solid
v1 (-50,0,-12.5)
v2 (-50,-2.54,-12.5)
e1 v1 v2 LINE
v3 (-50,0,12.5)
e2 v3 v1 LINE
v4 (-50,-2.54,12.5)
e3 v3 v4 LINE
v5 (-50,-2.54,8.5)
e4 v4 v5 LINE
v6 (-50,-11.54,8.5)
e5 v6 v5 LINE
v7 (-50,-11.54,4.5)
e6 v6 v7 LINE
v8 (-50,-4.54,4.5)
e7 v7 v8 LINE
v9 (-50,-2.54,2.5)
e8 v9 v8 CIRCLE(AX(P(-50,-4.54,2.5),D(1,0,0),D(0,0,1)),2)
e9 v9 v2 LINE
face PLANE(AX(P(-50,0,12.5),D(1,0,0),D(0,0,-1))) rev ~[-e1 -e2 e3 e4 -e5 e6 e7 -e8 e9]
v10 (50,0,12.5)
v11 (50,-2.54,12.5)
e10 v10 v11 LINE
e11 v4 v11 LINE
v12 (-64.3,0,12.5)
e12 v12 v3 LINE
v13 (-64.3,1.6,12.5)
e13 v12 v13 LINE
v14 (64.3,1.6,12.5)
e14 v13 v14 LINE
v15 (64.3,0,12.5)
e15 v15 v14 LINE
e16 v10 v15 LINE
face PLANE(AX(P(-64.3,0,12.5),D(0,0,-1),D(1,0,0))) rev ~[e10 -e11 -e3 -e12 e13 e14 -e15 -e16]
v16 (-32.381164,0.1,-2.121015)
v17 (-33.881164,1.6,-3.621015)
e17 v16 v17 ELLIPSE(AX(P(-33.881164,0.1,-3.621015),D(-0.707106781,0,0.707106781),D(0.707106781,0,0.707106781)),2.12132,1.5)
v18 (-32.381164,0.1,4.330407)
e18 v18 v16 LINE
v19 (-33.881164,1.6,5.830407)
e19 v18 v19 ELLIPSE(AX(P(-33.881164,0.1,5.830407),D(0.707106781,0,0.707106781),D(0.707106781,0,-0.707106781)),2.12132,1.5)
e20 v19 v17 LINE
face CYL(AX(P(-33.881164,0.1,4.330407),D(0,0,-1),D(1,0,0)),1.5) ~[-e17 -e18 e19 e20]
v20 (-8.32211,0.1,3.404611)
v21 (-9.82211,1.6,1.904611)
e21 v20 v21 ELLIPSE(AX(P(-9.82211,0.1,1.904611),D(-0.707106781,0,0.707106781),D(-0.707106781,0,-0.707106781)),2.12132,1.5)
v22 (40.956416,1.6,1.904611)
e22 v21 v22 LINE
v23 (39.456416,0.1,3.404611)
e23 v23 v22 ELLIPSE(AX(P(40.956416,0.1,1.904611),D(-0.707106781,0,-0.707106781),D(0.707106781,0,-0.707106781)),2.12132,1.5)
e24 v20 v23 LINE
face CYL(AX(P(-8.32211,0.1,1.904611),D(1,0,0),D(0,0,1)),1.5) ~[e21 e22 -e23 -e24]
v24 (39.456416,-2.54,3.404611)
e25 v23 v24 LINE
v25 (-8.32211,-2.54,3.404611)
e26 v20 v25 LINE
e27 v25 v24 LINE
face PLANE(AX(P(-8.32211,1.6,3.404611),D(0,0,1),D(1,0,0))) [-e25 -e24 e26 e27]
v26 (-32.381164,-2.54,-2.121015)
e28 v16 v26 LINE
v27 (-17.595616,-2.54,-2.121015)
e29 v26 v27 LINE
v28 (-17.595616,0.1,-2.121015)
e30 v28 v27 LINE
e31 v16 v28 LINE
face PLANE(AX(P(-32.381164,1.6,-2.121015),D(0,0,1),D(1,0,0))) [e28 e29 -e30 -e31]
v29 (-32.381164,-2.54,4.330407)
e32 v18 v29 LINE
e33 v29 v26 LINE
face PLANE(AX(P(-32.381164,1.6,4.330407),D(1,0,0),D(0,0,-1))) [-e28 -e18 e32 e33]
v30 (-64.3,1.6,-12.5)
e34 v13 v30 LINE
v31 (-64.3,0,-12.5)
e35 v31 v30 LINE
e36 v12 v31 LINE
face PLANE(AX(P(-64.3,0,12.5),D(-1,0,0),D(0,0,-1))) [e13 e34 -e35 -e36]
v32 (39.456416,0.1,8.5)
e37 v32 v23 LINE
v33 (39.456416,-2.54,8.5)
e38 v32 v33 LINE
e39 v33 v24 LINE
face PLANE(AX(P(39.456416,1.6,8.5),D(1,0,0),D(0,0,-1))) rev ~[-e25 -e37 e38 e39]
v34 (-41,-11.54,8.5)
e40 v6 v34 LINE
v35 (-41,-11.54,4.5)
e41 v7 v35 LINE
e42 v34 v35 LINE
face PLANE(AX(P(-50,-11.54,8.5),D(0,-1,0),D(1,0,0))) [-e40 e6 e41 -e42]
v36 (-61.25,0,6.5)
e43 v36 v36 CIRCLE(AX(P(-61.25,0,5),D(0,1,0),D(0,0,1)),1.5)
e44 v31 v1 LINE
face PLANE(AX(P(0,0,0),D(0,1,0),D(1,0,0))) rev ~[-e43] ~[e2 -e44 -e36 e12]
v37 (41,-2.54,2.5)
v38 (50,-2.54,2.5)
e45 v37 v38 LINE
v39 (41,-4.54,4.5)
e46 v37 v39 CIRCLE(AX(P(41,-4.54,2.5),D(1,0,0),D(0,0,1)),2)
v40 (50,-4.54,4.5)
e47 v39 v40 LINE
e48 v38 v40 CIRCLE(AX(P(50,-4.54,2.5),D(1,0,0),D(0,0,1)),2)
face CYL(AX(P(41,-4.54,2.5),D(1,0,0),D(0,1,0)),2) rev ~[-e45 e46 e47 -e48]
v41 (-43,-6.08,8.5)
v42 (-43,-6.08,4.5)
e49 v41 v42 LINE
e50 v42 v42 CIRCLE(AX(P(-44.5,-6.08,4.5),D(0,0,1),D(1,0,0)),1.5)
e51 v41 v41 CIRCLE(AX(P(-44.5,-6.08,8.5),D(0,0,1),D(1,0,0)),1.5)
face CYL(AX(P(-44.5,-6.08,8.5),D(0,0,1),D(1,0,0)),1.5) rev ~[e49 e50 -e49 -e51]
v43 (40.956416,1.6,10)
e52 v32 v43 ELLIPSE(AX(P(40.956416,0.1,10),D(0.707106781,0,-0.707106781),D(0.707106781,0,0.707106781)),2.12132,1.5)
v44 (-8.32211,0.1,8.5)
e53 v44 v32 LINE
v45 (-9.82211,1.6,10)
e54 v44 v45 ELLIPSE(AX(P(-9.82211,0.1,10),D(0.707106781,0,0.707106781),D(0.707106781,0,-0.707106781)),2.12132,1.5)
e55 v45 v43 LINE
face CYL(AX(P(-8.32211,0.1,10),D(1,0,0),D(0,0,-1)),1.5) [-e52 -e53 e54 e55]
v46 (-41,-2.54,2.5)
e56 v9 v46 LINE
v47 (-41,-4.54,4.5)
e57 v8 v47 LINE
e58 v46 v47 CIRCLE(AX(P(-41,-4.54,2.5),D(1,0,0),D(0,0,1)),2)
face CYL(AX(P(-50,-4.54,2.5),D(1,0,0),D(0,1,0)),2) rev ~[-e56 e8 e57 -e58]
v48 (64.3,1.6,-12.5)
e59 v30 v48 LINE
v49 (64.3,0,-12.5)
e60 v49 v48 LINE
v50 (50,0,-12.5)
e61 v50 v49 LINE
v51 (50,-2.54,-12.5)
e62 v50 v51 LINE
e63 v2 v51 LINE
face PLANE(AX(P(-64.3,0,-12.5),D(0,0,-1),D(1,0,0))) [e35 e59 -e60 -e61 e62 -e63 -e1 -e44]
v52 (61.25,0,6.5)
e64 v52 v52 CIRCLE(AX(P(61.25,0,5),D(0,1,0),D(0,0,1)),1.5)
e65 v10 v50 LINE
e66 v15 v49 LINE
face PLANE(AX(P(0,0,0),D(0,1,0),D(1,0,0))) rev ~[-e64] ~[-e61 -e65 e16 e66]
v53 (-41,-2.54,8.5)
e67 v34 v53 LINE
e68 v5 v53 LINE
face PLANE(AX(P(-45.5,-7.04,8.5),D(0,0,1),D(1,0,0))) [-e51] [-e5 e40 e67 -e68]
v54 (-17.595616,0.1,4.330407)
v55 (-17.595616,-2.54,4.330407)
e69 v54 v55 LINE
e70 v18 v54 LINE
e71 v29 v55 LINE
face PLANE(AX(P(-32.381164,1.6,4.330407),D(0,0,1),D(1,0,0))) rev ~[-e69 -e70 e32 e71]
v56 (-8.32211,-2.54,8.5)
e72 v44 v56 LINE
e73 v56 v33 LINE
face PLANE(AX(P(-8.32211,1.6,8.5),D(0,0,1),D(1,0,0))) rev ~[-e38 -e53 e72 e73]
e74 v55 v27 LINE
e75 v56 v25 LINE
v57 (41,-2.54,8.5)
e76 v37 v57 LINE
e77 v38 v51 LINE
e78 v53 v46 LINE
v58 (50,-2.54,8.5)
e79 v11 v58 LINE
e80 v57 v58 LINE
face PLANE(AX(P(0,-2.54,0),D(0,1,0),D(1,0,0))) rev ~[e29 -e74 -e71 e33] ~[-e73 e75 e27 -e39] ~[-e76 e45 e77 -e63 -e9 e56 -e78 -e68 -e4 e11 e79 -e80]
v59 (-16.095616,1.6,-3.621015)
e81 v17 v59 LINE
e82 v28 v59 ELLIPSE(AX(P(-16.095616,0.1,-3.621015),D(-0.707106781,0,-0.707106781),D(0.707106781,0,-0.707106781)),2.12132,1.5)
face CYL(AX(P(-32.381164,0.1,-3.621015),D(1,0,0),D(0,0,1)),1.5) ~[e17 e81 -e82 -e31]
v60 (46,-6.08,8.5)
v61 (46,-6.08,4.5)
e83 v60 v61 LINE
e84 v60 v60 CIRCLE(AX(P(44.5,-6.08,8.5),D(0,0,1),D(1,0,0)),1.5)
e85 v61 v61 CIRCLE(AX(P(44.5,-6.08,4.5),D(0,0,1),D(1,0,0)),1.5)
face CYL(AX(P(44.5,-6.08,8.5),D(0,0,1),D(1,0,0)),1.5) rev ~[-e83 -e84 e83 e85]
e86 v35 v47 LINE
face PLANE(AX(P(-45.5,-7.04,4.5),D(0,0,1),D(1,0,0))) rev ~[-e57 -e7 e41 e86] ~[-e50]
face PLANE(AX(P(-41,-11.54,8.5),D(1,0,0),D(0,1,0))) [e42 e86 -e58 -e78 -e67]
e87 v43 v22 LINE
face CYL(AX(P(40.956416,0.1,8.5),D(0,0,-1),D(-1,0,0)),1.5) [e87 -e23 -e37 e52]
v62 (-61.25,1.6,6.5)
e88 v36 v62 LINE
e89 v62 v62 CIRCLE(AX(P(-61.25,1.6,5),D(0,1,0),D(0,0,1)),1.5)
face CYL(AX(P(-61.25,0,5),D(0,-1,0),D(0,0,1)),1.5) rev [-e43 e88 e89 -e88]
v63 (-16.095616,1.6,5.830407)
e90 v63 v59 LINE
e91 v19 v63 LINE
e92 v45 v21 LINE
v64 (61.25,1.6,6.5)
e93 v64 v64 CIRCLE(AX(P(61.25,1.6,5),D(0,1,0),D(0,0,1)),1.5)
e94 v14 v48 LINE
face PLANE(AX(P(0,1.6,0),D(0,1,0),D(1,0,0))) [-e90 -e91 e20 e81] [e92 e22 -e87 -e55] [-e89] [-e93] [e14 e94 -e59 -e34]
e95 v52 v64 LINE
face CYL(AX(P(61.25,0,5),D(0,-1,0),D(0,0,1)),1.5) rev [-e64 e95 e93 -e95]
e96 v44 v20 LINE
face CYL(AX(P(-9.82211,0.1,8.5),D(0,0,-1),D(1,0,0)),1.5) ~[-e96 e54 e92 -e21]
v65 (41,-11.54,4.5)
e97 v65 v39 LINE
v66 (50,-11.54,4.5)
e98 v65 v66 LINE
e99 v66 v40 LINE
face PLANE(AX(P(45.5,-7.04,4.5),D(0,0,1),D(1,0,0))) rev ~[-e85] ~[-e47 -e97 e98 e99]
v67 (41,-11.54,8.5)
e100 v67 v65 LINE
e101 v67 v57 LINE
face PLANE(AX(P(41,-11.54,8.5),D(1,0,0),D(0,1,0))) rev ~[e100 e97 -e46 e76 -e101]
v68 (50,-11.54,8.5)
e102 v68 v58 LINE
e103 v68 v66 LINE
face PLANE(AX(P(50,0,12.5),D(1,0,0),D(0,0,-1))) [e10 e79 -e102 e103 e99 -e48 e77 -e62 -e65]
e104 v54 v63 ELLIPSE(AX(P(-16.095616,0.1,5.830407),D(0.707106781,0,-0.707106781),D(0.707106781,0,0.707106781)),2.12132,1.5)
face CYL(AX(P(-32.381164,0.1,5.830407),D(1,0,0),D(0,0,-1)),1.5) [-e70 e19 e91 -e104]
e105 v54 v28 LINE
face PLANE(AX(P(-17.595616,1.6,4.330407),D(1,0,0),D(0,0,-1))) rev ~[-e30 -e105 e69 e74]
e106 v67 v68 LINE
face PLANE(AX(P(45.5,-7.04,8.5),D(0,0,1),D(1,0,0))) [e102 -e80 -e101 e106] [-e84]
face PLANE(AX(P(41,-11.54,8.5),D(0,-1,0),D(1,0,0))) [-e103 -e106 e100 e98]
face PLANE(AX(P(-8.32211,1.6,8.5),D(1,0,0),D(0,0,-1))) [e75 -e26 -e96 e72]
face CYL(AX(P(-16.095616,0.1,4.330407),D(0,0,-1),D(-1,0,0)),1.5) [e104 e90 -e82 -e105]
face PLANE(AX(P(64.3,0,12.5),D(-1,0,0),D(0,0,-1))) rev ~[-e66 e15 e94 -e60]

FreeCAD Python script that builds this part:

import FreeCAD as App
import Part
import Sketcher
from FreeCAD import Vector


def edges_at(feature, points):
    """Names of the edges that pass closest to the given points."""
    edges = feature.Shape.Edges
    near = lambda p: min(range(len(edges)), key=lambda i: edges[i].distToShape(Part.Vertex(*p))[0])
    return sorted({f"Edge{near(p) + 1}" for p in points})

doc = App.newDocument("Part")
body = doc.addObject("PartDesign::Body", "Body")

# Sketch on XZ plane
sketch1 = doc.addObject("Sketcher::SketchObject", "Sketch")
body.addObject(sketch1)
sketch1.AttachmentSupport = (doc.XZ_Plane, [""])
sketch1.MapMode = "FlatFace"
sketch1.addGeometry([
    Part.LineSegment(Vector(-64.3, -12.5, 0), Vector(-64.3, 12.5, 0)),  # 0
    Part.LineSegment(Vector(-64.3, 12.5, 0), Vector(64.3, 12.5, 0)),  # 1
    Part.LineSegment(Vector(64.3, 12.5, 0), Vector(64.3, -12.5, 0)),  # 2
    Part.LineSegment(Vector(64.3, -12.5, 0), Vector(-64.3, -12.5, 0)),  # 3
    Part.Circle(Vector(-61.2, 5, 0), Vector(0, 0, 1), 1.5),  # 4
    Part.Circle(Vector(61.2, 5, 0), Vector(0, 0, 1), 1.5),  # 5
], False)
sketch1.addConstraint([
    Sketcher.Constraint("Coincident", 0, 2, 1, 1),
    Sketcher.Constraint("Coincident", 1, 2, 2, 1),
    Sketcher.Constraint("Coincident", 2, 2, 3, 1),
    Sketcher.Constraint("Coincident", 3, 2, 0, 1),
    Sketcher.Constraint("Vertical", 0),
    Sketcher.Constraint("Horizontal", 1),
    Sketcher.Constraint("Vertical", 2),
    Sketcher.Constraint("Horizontal", 3),
    Sketcher.Constraint("Equal", 4, 5),
    Sketcher.Constraint("Symmetric", 0, 2, 2, 2, -1, 1),
    Sketcher.Constraint("Symmetric", 4, 3, 5, 3, -2),
    Sketcher.Constraint("Diameter", 4, 3.0),
    Sketcher.Constraint("DistanceY", 0, 1, 0, 2, 25.0),
    Sketcher.Constraint("DistanceX", 1, 1, 1, 2, 128.6),
    Sketcher.Constraint("DistanceY", -1, 1, 4, 3, 5.0),
    Sketcher.Constraint("DistanceX", 4, 3, 5, 3, 122.5),
])
pad1 = doc.addObject("PartDesign::Pad", "Pad")
body.addObject(pad1)
pad1.Profile = sketch1
pad1.Length = 1.6
pad1.Reversed = True

# Sketch on XZ plane
sketch2 = doc.addObject("Sketcher::SketchObject", "Sketch001")
body.addObject(sketch2)
sketch2.AttachmentSupport = (doc.XZ_Plane, [""])
sketch2.MapMode = "FlatFace"
sketch2.addGeometry([
    Part.LineSegment(Vector(-50, -12, 0), Vector(-50, 12, 0)),
    Part.LineSegment(Vector(-50, 12, 0), Vector(50, 12, 0)),
    Part.LineSegment(Vector(50, 12, 0), Vector(50, -12, 0)),
    Part.LineSegment(Vector(50, -12, 0), Vector(-50, -12, 0)),
], False)
sketch2.addConstraint([
    Sketcher.Constraint("Coincident", 0, 2, 1, 1),
    Sketcher.Constraint("Coincident", 1, 2, 2, 1),
    Sketcher.Constraint("Coincident", 2, 2, 3, 1),
    Sketcher.Constraint("Coincident", 3, 2, 0, 1),
    Sketcher.Constraint("Vertical", 0),
    Sketcher.Constraint("Horizontal", 1),
    Sketcher.Constraint("Vertical", 2),
    Sketcher.Constraint("Horizontal", 3),
    Sketcher.Constraint("Symmetric", 0, 2, 2, 2, -1, 1),
    Sketcher.Constraint("DistanceX", 1, 1, 1, 2, 100.0),
    Sketcher.Constraint("DistanceY", 0, 1, 0, 2, 25.0),
])
pad2 = doc.addObject("PartDesign::Pad", "Pad001")
body.addObject(pad2)
pad2.Profile = sketch2
pad2.Length = 2.54

# Sketch on XY plane
sketch3 = doc.addObject("Sketcher::SketchObject", "Sketch002")
body.addObject(sketch3)
sketch3.AttachmentSupport = (doc.XY_Plane, [""])
sketch3.MapMode = "FlatFace"
sketch3.AttachmentOffset = App.Placement(Vector(0, 0, 8.5), App.Rotation())
sketch3.addGeometry([
    Part.LineSegment(Vector(-50, -2.5, 0), Vector(-50, -11.5, 0)),  # 0
    Part.LineSegment(Vector(-50, -11.5, 0), Vector(-41, -11.5, 0)),  # 1
    Part.LineSegment(Vector(-41, -11.5, 0), Vector(-41, -2.5, 0)),  # 2
    Part.LineSegment(Vector(-41, -2.5, 0), Vector(-50, -2.5, 0)),  # 3
    Part.Circle(Vector(-44.5, -6.1, 0), Vector(0, 0, 1), 1.5),  # 4
    Part.LineSegment(Vector(41, -2.5, 0), Vector(41, -11.5, 0)),  # 5
    Part.LineSegment(Vector(41, -11.5, 0), Vector(50, -11.5, 0)),  # 6
    Part.LineSegment(Vector(50, -11.5, 0), Vector(50, -2.5, 0)),  # 7
    Part.LineSegment(Vector(50, -2.5, 0), Vector(41, -2.5, 0)),  # 8
    Part.Circle(Vector(44.5, -6.1, 0), Vector(0, 0, 1), 1.5),  # 9
], False)
sketch3.addConstraint([
    Sketcher.Constraint("Coincident", 0, 2, 1, 1),
    Sketcher.Constraint("Coincident", 1, 2, 2, 1),
    Sketcher.Constraint("Coincident", 2, 2, 3, 1),
    Sketcher.Constraint("Coincident", 3, 2, 0, 1),
    Sketcher.Constraint("Coincident", 5, 2, 6, 1),
    Sketcher.Constraint("Coincident", 6, 2, 7, 1),
    Sketcher.Constraint("Coincident", 7, 2, 8, 1),
    Sketcher.Constraint("Coincident", 8, 2, 5, 1),
    Sketcher.Constraint("Vertical", 0),
    Sketcher.Constraint("Horizontal", 1),
    Sketcher.Constraint("Vertical", 2),
    Sketcher.Constraint("Horizontal", 3),
    Sketcher.Constraint("Vertical", 5),
    Sketcher.Constraint("Horizontal", 6),
    Sketcher.Constraint("Vertical", 7),
    Sketcher.Constraint("Horizontal", 8),
    Sketcher.Constraint("Equal", 4, 9),
    Sketcher.Constraint("Symmetric", 4, 3, 9, 3, -2),
    Sketcher.Constraint("Symmetric", 1, 2, 5, 2, -2),
    Sketcher.Constraint("Symmetric", 3, 2, 7, 2, -2),
    Sketcher.Constraint("Equal", 8, 0),
    Sketcher.Constraint("Diameter", 4, 3.0),
    Sketcher.Constraint("DistanceX", 1, 1, 1, 2, 9.0),
    Sketcher.Constraint("DistanceX", 0, 2, -1, 1, 50.0),
    Sketcher.Constraint("DistanceX", 4, 3, 9, 3, 89.0),
    Sketcher.Constraint("DistanceY", 4, 3, -1, 1, 6.08),
    Sketcher.Constraint("DistanceY", 0, 2, -1, 1, 11.54),
])
pad3 = doc.addObject("PartDesign::Pad", "Pad002")
body.addObject(pad3)
pad3.Profile = sketch3
pad3.Length = 4
pad3.Reversed = True
doc.recompute()

fillet = doc.addObject("PartDesign::Fillet", "Fillet")
body.addObject(fillet)
fillet.Base = (pad3, edges_at(pad3, [(-45.5, -2.54, 4.5), (45.5, -2.54, 4.5)]))
fillet.Radius = 2

# Sketch on XZ plane
sketch4 = doc.addObject("Sketcher::SketchObject", "Sketch003")
body.addObject(sketch4)
sketch4.AttachmentSupport = (doc.XZ_Plane, [""])
sketch4.MapMode = "FlatFace"
sketch4.AttachmentOffset = App.Placement(Vector(0, 0, -1.6), App.Rotation())
sketch4.addGeometry([
    Part.LineSegment(Vector(-8, 3, 0), Vector(-8, 8, 0)),  # 0
    Part.LineSegment(Vector(-8, 8, 0), Vector(39, 8, 0)),  # 1
    Part.LineSegment(Vector(39, 8, 0), Vector(39, 3, 0)),  # 2
    Part.LineSegment(Vector(39, 3, 0), Vector(-8, 3, 0)),  # 3
    Part.LineSegment(Vector(-32, -2, 0), Vector(-32, 4, 0)),  # 4
    Part.LineSegment(Vector(-32, 4, 0), Vector(-18, 4, 0)),  # 5
    Part.LineSegment(Vector(-18, 4, 0), Vector(-18, -2, 0)),  # 6
    Part.LineSegment(Vector(-18, -2, 0), Vector(-32, -2, 0)),  # 7
], False)
sketch4.addConstraint([
    Sketcher.Constraint("Coincident", 0, 2, 1, 1),
    Sketcher.Constraint("Coincident", 1, 2, 2, 1),
    Sketcher.Constraint("Coincident", 2, 2, 3, 1),
    Sketcher.Constraint("Coincident", 3, 2, 0, 1),
    Sketcher.Constraint("Coincident", 4, 2, 5, 1),
    Sketcher.Constraint("Coincident", 5, 2, 6, 1),
    Sketcher.Constraint("Coincident", 6, 2, 7, 1),
    Sketcher.Constraint("Coincident", 7, 2, 4, 1),
    Sketcher.Constraint("Vertical", 0),
    Sketcher.Constraint("Horizontal", 1),
    Sketcher.Constraint("Vertical", 2),
    Sketcher.Constraint("Horizontal", 3),
    Sketcher.Constraint("Vertical", 4),
    Sketcher.Constraint("Horizontal", 5),
    Sketcher.Constraint("Vertical", 6),
    Sketcher.Constraint("Horizontal", 7),
    Sketcher.Constraint("DistanceY", -1, 1, 0, 2, 8.5),
    Sketcher.Constraint("DistanceY", 0, 1, 0, 2, 5.095389),
    Sketcher.Constraint("DistanceY", 4, 1, 4, 2, 6.451422),
    Sketcher.Constraint("DistanceX", 1, 1, 1, 2, 47.778526),
    Sketcher.Constraint("DistanceX", 5, 1, 5, 2, 14.785547),
    Sketcher.Constraint("DistanceX", 0, 2, -1, 1, 8.32211),
    Sketcher.Constraint("DistanceX", 4, 2, 2, 2, 71.837579),
    Sketcher.Constraint("DistanceY", -1, 1, 4, 2, 4.330407),
])
pocket1 = doc.addObject("PartDesign::Pocket", "Pocket")
body.addObject(pocket1)
pocket1.Profile = sketch4
pocket1.Type = "ThroughAll"
pocket1.Reversed = True
doc.recompute()

fillet2 = doc.addObject("PartDesign::Fillet", "Fillet001")
body.addObject(fillet2)
fillet2.Base = (pocket1, edges_at(pocket1, [
    (-24.988, 1.6, 4.33),
    (-17.596, 1.6, 1.105),
    (-24.988, 1.6, -2.121),
    (-8.322, 1.6, 5.952),
    (15.567, 1.6, 8.5),
    (39.456, 1.6, 5.952),
    (15.567, 1.6, 3.405),
    (-32.381, 1.6, 1.105),
]))
fillet2.Radius = 1.5

doc.recompute()
